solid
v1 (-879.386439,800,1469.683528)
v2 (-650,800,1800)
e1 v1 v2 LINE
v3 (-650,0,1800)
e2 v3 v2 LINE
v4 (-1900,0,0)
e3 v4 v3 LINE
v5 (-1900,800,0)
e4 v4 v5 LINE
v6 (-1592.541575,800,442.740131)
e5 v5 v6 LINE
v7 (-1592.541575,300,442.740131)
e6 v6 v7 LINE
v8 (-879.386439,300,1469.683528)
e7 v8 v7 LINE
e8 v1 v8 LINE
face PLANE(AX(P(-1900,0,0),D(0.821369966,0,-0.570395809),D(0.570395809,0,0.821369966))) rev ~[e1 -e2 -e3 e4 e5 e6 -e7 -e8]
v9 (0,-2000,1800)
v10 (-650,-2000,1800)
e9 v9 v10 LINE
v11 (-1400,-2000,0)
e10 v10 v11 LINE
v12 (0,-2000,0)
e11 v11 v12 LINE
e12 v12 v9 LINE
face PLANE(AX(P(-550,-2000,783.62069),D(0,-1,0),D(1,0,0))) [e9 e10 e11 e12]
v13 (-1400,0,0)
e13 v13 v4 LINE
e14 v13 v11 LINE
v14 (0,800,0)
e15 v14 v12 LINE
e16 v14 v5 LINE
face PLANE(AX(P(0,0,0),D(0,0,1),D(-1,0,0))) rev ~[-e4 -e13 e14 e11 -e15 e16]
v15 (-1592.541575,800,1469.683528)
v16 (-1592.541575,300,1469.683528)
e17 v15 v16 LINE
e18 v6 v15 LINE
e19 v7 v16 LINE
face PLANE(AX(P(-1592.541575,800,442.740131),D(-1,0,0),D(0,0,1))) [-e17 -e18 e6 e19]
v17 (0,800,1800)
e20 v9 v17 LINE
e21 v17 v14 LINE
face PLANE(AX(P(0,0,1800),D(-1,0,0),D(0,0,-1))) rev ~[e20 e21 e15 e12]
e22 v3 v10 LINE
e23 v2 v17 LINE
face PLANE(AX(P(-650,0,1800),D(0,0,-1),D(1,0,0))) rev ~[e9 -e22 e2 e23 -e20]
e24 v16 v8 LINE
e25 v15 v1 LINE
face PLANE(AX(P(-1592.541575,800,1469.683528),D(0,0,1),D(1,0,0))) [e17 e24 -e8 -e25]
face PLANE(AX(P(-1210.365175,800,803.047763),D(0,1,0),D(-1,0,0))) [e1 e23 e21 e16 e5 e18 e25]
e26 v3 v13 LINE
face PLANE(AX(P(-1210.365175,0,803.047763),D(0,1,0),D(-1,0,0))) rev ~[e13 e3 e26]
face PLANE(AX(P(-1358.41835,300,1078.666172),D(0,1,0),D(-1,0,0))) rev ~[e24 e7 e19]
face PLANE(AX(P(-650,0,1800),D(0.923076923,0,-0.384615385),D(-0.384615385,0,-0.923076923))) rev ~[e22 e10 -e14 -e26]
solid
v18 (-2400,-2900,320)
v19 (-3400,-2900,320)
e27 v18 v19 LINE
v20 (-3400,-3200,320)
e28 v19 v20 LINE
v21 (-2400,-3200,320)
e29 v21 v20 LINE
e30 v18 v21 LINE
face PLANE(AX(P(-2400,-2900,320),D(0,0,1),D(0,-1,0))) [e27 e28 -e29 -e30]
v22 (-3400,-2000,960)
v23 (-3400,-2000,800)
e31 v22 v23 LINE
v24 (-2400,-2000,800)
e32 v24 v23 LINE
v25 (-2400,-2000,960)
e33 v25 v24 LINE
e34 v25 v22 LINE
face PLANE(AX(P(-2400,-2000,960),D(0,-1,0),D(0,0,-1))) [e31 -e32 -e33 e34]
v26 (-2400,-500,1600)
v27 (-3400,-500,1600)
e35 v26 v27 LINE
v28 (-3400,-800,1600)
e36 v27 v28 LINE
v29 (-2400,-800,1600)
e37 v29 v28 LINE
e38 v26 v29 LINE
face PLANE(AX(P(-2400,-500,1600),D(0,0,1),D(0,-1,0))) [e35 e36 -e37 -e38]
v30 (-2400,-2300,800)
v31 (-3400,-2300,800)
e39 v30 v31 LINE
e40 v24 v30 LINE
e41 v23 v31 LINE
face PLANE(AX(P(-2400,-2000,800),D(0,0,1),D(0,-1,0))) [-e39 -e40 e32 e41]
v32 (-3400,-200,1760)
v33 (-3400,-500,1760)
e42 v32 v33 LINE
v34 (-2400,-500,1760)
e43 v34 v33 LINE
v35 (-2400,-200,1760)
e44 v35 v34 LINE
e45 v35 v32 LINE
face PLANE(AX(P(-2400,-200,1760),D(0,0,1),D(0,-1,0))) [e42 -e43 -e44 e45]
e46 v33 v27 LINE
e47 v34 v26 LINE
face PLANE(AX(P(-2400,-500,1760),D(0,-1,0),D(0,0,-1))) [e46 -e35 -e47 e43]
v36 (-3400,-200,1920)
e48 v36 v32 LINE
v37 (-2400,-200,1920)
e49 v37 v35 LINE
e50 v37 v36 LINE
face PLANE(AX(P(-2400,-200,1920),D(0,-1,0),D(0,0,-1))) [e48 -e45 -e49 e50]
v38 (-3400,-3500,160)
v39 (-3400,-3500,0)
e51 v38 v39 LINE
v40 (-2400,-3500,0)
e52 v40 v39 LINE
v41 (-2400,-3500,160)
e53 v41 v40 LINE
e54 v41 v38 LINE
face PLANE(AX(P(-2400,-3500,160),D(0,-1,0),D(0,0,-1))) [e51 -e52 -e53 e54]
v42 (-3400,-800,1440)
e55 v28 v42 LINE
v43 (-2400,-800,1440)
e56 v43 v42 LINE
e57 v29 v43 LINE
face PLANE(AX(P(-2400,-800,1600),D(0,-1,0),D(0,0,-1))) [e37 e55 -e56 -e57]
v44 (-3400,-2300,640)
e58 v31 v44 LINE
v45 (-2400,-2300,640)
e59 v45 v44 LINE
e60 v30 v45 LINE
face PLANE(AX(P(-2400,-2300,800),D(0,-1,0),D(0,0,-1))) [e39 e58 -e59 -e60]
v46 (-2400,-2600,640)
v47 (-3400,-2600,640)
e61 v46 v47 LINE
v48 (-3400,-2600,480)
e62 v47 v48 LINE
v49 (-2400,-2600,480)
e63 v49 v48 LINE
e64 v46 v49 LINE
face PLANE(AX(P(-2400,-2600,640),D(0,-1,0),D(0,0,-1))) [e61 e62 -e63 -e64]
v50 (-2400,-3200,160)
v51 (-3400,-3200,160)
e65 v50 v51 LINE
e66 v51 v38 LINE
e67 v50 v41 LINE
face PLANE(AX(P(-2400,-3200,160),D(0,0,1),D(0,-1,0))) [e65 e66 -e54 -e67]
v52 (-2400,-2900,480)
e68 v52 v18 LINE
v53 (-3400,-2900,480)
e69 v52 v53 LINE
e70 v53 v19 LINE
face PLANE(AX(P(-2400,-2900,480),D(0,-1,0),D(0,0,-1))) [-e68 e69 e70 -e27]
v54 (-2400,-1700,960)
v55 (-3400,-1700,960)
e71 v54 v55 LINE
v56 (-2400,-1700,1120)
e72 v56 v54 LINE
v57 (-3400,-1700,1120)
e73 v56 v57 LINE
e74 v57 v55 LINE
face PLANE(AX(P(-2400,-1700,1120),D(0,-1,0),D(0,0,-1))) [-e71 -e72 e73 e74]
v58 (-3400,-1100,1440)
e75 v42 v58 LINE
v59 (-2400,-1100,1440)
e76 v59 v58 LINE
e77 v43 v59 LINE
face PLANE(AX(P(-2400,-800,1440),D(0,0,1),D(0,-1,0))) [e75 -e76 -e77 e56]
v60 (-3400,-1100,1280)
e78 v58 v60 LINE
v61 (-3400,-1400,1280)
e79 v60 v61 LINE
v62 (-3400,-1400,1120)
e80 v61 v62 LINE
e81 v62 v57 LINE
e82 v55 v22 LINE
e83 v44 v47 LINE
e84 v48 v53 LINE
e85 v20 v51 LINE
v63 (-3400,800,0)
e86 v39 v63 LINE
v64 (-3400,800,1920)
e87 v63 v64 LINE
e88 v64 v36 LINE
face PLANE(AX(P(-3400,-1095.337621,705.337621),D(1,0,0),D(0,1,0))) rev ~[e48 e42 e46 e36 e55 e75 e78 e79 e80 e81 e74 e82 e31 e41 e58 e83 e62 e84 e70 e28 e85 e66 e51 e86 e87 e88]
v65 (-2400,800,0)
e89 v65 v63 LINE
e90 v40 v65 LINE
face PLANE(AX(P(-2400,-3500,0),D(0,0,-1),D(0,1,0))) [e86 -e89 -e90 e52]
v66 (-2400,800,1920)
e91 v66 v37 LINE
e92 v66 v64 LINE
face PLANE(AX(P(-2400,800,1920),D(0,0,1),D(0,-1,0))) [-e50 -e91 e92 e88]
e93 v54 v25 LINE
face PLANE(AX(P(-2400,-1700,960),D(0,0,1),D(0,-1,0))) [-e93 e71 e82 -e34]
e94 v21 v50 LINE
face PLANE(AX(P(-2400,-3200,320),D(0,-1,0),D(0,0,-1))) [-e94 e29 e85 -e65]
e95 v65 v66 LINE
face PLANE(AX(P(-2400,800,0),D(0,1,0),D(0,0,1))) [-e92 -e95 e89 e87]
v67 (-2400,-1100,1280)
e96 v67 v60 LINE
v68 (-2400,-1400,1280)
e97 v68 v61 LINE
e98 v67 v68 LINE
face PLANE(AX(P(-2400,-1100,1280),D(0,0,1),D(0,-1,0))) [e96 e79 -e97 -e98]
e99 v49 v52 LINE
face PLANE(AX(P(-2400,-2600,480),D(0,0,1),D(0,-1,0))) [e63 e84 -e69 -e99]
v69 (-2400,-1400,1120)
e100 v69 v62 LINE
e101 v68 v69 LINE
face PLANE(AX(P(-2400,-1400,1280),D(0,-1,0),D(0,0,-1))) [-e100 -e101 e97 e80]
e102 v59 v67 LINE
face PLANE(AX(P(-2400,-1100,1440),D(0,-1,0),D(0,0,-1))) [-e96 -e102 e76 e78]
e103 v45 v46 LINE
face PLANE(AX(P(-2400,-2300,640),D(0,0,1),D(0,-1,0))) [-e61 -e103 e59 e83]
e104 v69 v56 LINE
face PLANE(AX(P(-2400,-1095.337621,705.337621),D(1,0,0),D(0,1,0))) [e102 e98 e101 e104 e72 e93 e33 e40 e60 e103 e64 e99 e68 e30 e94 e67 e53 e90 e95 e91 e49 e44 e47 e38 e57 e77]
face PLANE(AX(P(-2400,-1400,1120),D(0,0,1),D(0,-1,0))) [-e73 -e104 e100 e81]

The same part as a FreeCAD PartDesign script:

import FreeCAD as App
import Part
import Sketcher
from FreeCAD import Vector
Q = App.Units.Quantity

doc = App.newDocument("Part")
body = doc.addObject("PartDesign::Body", "Body")

sketch1 = body.newObject("Sketcher::SketchObject", "Sketch")
sketch1.AttachmentSupport = (doc.getObject("XZ_Plane"), [""])
sketch1.MapMode = "FlatFace"
sketch1.addGeometry([
    Part.LineSegment(Vector(-1400, 0, 0), Vector(0, 0, 0)),
    Part.LineSegment(Vector(0, 0, 0), Vector(0, 1800, 0)),
    Part.LineSegment(Vector(0, 1800, 0), Vector(-650, 1800, 0)),
    Part.LineSegment(Vector(-650, 1800, 0), Vector(-1400, 0, 0)),
], False)
sketch1.addConstraint([
    Sketcher.Constraint("Coincident", 0, 2, 1, 1),
    Sketcher.Constraint("Coincident", 1, 2, 2, 1),
    Sketcher.Constraint("Coincident", 2, 2, 3, 1),
    Sketcher.Constraint("Coincident", 3, 2, 0, 1),
    Sketcher.Constraint("Horizontal", 0),
    Sketcher.Constraint("Vertical", 1),
    Sketcher.Constraint("Horizontal", 2),
    Sketcher.Constraint("Coincident", 0, 2, -1, 1),
    Sketcher.Constraint("DistanceX", 0, 1, 0, 2, Q("1400 mm")),
    Sketcher.Constraint("DistanceX", 2, 2, 2, 1, Q("650 mm")),
    Sketcher.Constraint("DistanceY", 1, 1, 1, 2, Q("1800 mm")),
])
pad1 = body.newObject("PartDesign::Pad", "Pad")
pad1.Profile = sketch1
pad1.Length = 2000
body2 = doc.addObject("PartDesign::Body", "Body001")

sketch2 = body2.newObject("Sketcher::SketchObject", "Sketch001")
sketch2.AttachmentSupport = (doc.getObject("XZ_Plane001"), [""])
sketch2.MapMode = "FlatFace"
sketch2.addGeometry([
    Part.LineSegment(Vector(-1900, 0, 0), Vector(-650, 1800, 0)),
    Part.LineSegment(Vector(-650, 1800, 0), Vector(0, 1800, 0)),
    Part.LineSegment(Vector(0, 1800, 0), Vector(0, 0, 0)),
    Part.LineSegment(Vector(0, 0, 0), Vector(-1900, 0, 0)),
], False)
sketch2.addConstraint([
    Sketcher.Constraint("Coincident", 0, 2, 1, 1),
    Sketcher.Constraint("Coincident", 1, 2, 2, 1),
    Sketcher.Constraint("Coincident", 2, 2, 3, 1),
    Sketcher.Constraint("Coincident", 3, 2, 0, 1),
    Sketcher.Constraint("Horizontal", 1),
    Sketcher.Constraint("Vertical", 2),
    Sketcher.Constraint("Horizontal", 3),
    Sketcher.Constraint("Coincident", 2, 2, -1, 1),
    Sketcher.Constraint("DistanceX", 1, 1, 1, 2, Q("650 mm")),
    Sketcher.Constraint("DistanceX", 3, 2, 3, 1, Q("1900 mm")),
    Sketcher.Constraint("DistanceY", 2, 2, 2, 1, Q("1800 mm")),
])
pad2 = body2.newObject("PartDesign::Pad", "Pad001")
pad2.Profile = sketch2
pad2.Length = 800
pad2.Reversed = True
doc.recompute()

boolean = body.newObject("PartDesign::Boolean", "Boolean")
boolean.Type = "Fuse"
boolean.addObjects([body2])

sketch3 = body.newObject("Sketcher::SketchObject", "Sketch002")
sketch3.AttachmentSupport = (doc.getObject("XZ_Plane"), [""])
sketch3.MapMode = "FlatFace"
sketch3.AttachmentOffset = App.Placement(Vector(0, 0, -800), App.Rotation())
sketch3.addGeometry([
    Part.LineSegment(Vector(-1593, 1470, 0), Vector(-879, 1470, 0)),
    Part.LineSegment(Vector(-879, 1470, 0), Vector(-1593, 443, 0)),
    Part.LineSegment(Vector(-1593, 443, 0), Vector(-1593, 1470, 0)),
], False)
sketch3.addConstraint([
    Sketcher.Constraint("Coincident", 0, 2, 1, 1),
    Sketcher.Constraint("Coincident", 1, 2, 2, 1),
    Sketcher.Constraint("Coincident", 2, 2, 0, 1),
    Sketcher.Constraint("Horizontal", 0),
    Sketcher.Constraint("Vertical", 2),
    Sketcher.Constraint("DistanceX", 0, 1, 0, 2, Q("713.155137 mm")),
    Sketcher.Constraint("DistanceY", 2, 1, 2, 2, Q("1026.943397 mm")),
    Sketcher.Constraint("DistanceX", 0, 2, -1, 1, Q("879.386439 mm")),
    Sketcher.Constraint("DistanceY", -1, 1, 1, 2, Q("442.740131 mm")),
])
pad3 = body.newObject("PartDesign::Pad", "Pad002")
pad3.Profile = sketch3
pad3.Length = 500
body3 = doc.addObject("PartDesign::Body", "Body002")

sketch4 = body3.newObject("Sketcher::SketchObject", "Sketch003")
sketch4.AttachmentSupport = (doc.getObject("YZ_Plane002"), [""])
sketch4.MapMode = "FlatFace"
sketch4.AttachmentOffset = App.Placement(Vector(0, 0, -2400), App.Rotation())
sketch4.addGeometry([
    Part.LineSegment(Vector(-3500, 160, 0), Vector(-3500, 0, 0)),
    Part.LineSegment(Vector(-3500, 0, 0), Vector(800, 0, 0)),
    Part.LineSegment(Vector(800, 0, 0), Vector(800, 1920, 0)),
    Part.LineSegment(Vector(800, 1920, 0), Vector(-200, 1920, 0)),
    Part.LineSegment(Vector(-200, 1920, 0), Vector(-200, 1760, 0)),
    Part.LineSegment(Vector(-200, 1760, 0), Vector(-500, 1760, 0)),
    Part.LineSegment(Vector(-500, 1760, 0), Vector(-500, 1600, 0)),
    Part.LineSegment(Vector(-500, 1600, 0), Vector(-800, 1600, 0)),
    Part.LineSegment(Vector(-800, 1600, 0), Vector(-800, 1440, 0)),
    Part.LineSegment(Vector(-800, 1440, 0), Vector(-1100, 1440, 0)),
    Part.LineSegment(Vector(-1100, 1440, 0), Vector(-1100, 1280, 0)),
    Part.LineSegment(Vector(-1100, 1280, 0), Vector(-1400, 1280, 0)),
    Part.LineSegment(Vector(-1400, 1280, 0), Vector(-1400, 1120, 0)),
    Part.LineSegment(Vector(-1400, 1120, 0), Vector(-1700, 1120, 0)),
    Part.LineSegment(Vector(-1700, 1120, 0), Vector(-1700, 960, 0)),
    Part.LineSegment(Vector(-1700, 960, 0), Vector(-2000, 960, 0)),
    Part.LineSegment(Vector(-2000, 960, 0), Vector(-2000, 800, 0)),
    Part.LineSegment(Vector(-2000, 800, 0), Vector(-2300, 800, 0)),
    Part.LineSegment(Vector(-2300, 800, 0), Vector(-2300, 640, 0)),
    Part.LineSegment(Vector(-2300, 640, 0), Vector(-2600, 640, 0)),
    Part.LineSegment(Vector(-2600, 640, 0), Vector(-2600, 480, 0)),
    Part.LineSegment(Vector(-2600, 480, 0), Vector(-2900, 480, 0)),
    Part.LineSegment(Vector(-2900, 480, 0), Vector(-2900, 320, 0)),
    Part.LineSegment(Vector(-2900, 320, 0), Vector(-3200, 320, 0)),
    Part.LineSegment(Vector(-3200, 320, 0), Vector(-3200, 160, 0)),
    Part.LineSegment(Vector(-3200, 160, 0), Vector(-3500, 160, 0)),
], False)
sketch4.addConstraint([
    Sketcher.Constraint("Coincident", 0, 2, 1, 1),
    Sketcher.Constraint("Coincident", 1, 2, 2, 1),
    Sketcher.Constraint("Coincident", 2, 2, 3, 1),
    Sketcher.Constraint("Coincident", 3, 2, 4, 1),
    Sketcher.Constraint("Coincident", 4, 2, 5, 1),
    Sketcher.Constraint("Coincident", 5, 2, 6, 1),
    Sketcher.Constraint("Coincident", 6, 2, 7, 1),
    Sketcher.Constraint("Coincident", 7, 2, 8, 1),
    Sketcher.Constraint("Coincident", 8, 2, 9, 1),
    Sketcher.Constraint("Coincident", 9, 2, 10, 1),
    Sketcher.Constraint("Coincident", 10, 2, 11, 1),
    Sketcher.Constraint("Coincident", 11, 2, 12, 1),
    Sketcher.Constraint("Coincident", 12, 2, 13, 1),
    Sketcher.Constraint("Coincident", 13, 2, 14, 1),
    Sketcher.Constraint("Coincident", 14, 2, 15, 1),
    Sketcher.Constraint("Coincident", 15, 2, 16, 1),
    Sketcher.Constraint("Coincident", 16, 2, 17, 1),
    Sketcher.Constraint("Coincident", 17, 2, 18, 1),
    Sketcher.Constraint("Coincident", 18, 2, 19, 1),
    Sketcher.Constraint("Coincident", 19, 2, 20, 1),
    Sketcher.Constraint("Coincident", 20, 2, 21, 1),
    Sketcher.Constraint("Coincident", 21, 2, 22, 1),
    Sketcher.Constraint("Coincident", 22, 2, 23, 1),
    Sketcher.Constraint("Coincident", 23, 2, 24, 1),
    Sketcher.Constraint("Coincident", 24, 2, 25, 1),
    Sketcher.Constraint("Coincident", 25, 2, 0, 1),
    Sketcher.Constraint("Vertical", 0),
    Sketcher.Constraint("Horizontal", 1),
    Sketcher.Constraint("Vertical", 2),
    Sketcher.Constraint("Horizontal", 3),
    Sketcher.Constraint("Vertical", 4),
    Sketcher.Constraint("Horizontal", 5),
    Sketcher.Constraint("Vertical", 6),
    Sketcher.Constraint("Horizontal", 7),
    Sketcher.Constraint("Vertical", 8),
    Sketcher.Constraint("Horizontal", 9),
    Sketcher.Constraint("Vertical", 10),
    Sketcher.Constraint("Horizontal", 11),
    Sketcher.Constraint("Vertical", 12),
    Sketcher.Constraint("Horizontal", 13),
    Sketcher.Constraint("Vertical", 14),
    Sketcher.Constraint("Horizontal", 15),
    Sketcher.Constraint("Vertical", 16),
    Sketcher.Constraint("Horizontal", 17),
    Sketcher.Constraint("Vertical", 18),
    Sketcher.Constraint("Horizontal", 19),
    Sketcher.Constraint("Vertical", 20),
    Sketcher.Constraint("Horizontal", 21),
    Sketcher.Constraint("Vertical", 22),
    Sketcher.Constraint("Horizontal", 23),
    Sketcher.Constraint("Vertical", 24),
    Sketcher.Constraint("Horizontal", 25),
    Sketcher.Constraint("PointOnObject", 0, 2, -1),
    Sketcher.Constraint("Equal", 5, 7),
    Sketcher.Constraint("Equal", 7, 9),
    Sketcher.Constraint("Equal", 9, 11),
    Sketcher.Constraint("Equal", 11, 13),
    Sketcher.Constraint("Equal", 13, 15),
    Sketcher.Constraint("Equal", 15, 17),
    Sketcher.Constraint("Equal", 17, 19),
    Sketcher.Constraint("Equal", 19, 21),
    Sketcher.Constraint("Equal", 21, 23),
    Sketcher.Constraint("Equal", 23, 25),
    Sketcher.Constraint("Equal", 0, 4),
    Sketcher.Constraint("Equal", 4, 6),
    Sketcher.Constraint("Equal", 6, 8),
    Sketcher.Constraint("Equal", 8, 10),
    Sketcher.Constraint("Equal", 10, 12),
    Sketcher.Constraint("Equal", 12, 14),
    Sketcher.Constraint("Equal", 14, 16),
    Sketcher.Constraint("Equal", 16, 18),
    Sketcher.Constraint("Equal", 18, 20),
    Sketcher.Constraint("Equal", 20, 22),
    Sketcher.Constraint("Equal", 22, 24),
    Sketcher.Constraint("DistanceX", 1, 1, 1, 2, Q("4300 mm")),
    Sketcher.Constraint("DistanceX", 3, 2, 3, 1, Q("1000 mm")),
    Sketcher.Constraint("DistanceY", 0, 2, 0, 1, Q("160 mm")),
    Sketcher.Constraint("DistanceX", 0, 2, -1, 1, Q("3500 mm")),
])
pad4 = body3.newObject("PartDesign::Pad", "Pad003")
pad4.Profile = sketch4
pad4.Length = 1000
pad4.Reversed = True

doc.recompute()
